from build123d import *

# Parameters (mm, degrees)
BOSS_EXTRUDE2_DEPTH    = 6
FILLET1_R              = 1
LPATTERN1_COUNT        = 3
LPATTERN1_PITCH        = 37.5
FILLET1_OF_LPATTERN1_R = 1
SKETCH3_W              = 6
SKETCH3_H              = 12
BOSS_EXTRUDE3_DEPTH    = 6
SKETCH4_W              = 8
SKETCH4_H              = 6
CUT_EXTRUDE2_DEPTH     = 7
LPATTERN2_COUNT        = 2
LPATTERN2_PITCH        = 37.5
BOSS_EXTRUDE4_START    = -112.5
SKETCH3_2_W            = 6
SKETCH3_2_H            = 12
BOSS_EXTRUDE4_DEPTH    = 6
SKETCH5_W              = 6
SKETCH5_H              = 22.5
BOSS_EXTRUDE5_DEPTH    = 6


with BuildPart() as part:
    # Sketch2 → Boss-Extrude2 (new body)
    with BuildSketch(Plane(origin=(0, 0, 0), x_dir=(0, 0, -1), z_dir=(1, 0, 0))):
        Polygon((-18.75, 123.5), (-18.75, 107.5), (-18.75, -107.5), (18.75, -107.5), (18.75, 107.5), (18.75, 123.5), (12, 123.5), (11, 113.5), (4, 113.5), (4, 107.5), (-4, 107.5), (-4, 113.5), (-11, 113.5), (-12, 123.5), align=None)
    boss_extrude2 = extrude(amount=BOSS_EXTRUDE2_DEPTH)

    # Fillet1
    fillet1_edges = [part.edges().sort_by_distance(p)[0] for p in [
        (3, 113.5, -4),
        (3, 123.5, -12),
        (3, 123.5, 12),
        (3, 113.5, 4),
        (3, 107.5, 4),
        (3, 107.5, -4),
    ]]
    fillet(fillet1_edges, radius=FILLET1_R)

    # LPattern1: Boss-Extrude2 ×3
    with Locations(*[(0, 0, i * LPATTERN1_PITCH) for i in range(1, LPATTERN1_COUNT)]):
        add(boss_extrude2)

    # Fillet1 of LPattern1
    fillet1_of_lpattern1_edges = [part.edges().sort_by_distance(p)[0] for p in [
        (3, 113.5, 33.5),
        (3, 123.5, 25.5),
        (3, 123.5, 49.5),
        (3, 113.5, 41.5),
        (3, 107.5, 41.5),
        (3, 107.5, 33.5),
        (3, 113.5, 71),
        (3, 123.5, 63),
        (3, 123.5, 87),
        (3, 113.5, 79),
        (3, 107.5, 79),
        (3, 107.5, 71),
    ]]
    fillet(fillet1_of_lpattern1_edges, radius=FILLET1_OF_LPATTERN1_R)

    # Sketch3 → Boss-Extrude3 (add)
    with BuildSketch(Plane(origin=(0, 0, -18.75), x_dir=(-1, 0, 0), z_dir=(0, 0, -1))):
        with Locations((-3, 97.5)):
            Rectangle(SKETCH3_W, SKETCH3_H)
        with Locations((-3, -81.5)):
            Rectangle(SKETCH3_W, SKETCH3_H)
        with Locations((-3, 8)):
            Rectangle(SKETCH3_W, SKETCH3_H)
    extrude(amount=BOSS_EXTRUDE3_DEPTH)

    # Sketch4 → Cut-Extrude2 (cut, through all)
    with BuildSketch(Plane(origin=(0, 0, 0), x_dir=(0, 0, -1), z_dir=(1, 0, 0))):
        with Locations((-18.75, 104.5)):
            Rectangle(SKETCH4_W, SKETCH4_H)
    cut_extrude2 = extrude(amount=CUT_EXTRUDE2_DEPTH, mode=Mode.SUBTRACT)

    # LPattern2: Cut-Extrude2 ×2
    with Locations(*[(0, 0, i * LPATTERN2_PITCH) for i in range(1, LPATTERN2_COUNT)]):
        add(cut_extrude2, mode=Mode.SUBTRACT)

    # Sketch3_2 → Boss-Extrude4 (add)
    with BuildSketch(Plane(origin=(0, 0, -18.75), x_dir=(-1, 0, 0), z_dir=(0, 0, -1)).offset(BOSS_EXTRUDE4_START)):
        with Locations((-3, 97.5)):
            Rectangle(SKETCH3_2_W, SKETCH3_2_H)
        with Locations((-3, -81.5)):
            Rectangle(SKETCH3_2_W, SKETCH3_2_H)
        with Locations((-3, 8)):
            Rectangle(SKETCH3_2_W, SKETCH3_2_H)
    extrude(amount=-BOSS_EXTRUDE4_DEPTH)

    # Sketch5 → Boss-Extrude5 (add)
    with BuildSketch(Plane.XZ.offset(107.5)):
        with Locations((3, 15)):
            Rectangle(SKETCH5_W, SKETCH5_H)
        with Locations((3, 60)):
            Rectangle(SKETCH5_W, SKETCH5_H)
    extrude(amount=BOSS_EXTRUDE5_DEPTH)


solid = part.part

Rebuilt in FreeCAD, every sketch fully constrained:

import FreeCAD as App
import Part
import Sketcher

V = App.Vector
Q = App.Units.Quantity


def edges_at(feature, points):
    """Names of the edges that pass closest to the given points."""
    edges = feature.Shape.Edges
    near = lambda p: min(range(len(edges)), key=lambda i: edges[i].distToShape(Part.Vertex(*p))[0])
    return sorted({f"Edge{near(p) + 1}" for p in points})

doc = App.newDocument("Part")
body = doc.addObject("PartDesign::Body", "Body")

# Sketch on YZ plane
sketch1 = body.newObject("Sketcher::SketchObject", "Sketch")
sketch1.AttachmentSupport = (doc.getObject("YZ_Plane"), [""])
sketch1.MapMode = "FlatFace"
sketch1.addGeometry([
    Part.LineSegment(V(124, 19, 0), V(-108, 19, 0)),  # 0
    Part.LineSegment(V(-108, 19, 0), V(-108, -19, 0)),  # 1
    Part.LineSegment(V(-108, -19, 0), V(124, -19, 0)),  # 2
    Part.LineSegment(V(124, -19, 0), V(124, -12, 0)),  # 3
    Part.LineSegment(V(124, -12, 0), V(114, -11, 0)),  # 4
    Part.LineSegment(V(114, -11, 0), V(114, -4, 0)),  # 5
    Part.LineSegment(V(114, -4, 0), V(108, -4, 0)),  # 6
    Part.LineSegment(V(108, -4, 0), V(108, 4, 0)),  # 7
    Part.LineSegment(V(108, 4, 0), V(114, 4, 0)),  # 8
    Part.LineSegment(V(114, 4, 0), V(114, 11, 0)),  # 9
    Part.LineSegment(V(114, 11, 0), V(124, 12, 0)),  # 10
    Part.LineSegment(V(124, 12, 0), V(124, 19, 0)),  # 11
], False)
sketch1.addConstraint([
    Sketcher.Constraint("Coincident", 0, 2, 1, 1),
    Sketcher.Constraint("Coincident", 1, 2, 2, 1),
    Sketcher.Constraint("Coincident", 2, 2, 3, 1),
    Sketcher.Constraint("Coincident", 3, 2, 4, 1),
    Sketcher.Constraint("Coincident", 4, 2, 5, 1),
    Sketcher.Constraint("Coincident", 5, 2, 6, 1),
    Sketcher.Constraint("Coincident", 6, 2, 7, 1),
    Sketcher.Constraint("Coincident", 7, 2, 8, 1),
    Sketcher.Constraint("Coincident", 8, 2, 9, 1),
    Sketcher.Constraint("Coincident", 9, 2, 10, 1),
    Sketcher.Constraint("Coincident", 10, 2, 11, 1),
    Sketcher.Constraint("Coincident", 11, 2, 0, 1),
    Sketcher.Constraint("Horizontal", 0),
    Sketcher.Constraint("Vertical", 1),
    Sketcher.Constraint("Horizontal", 2),
    Sketcher.Constraint("Vertical", 3),
    Sketcher.Constraint("Vertical", 5),
    Sketcher.Constraint("Horizontal", 6),
    Sketcher.Constraint("Vertical", 7),
    Sketcher.Constraint("Horizontal", 8),
    Sketcher.Constraint("Vertical", 9),
    Sketcher.Constraint("Vertical", 11),
    Sketcher.Constraint("Symmetric", 5, 2, 8, 2, -1),
    Sketcher.Constraint("Symmetric", 3, 2, 10, 2, -1),
    Sketcher.Constraint("Equal", 5, 9),
    Sketcher.Constraint("Equal", 3, 11),
    Sketcher.Constraint("DistanceX", 0, 2, 0, 1, Q("231 mm")),
    Sketcher.Constraint("DistanceX", 6, 2, 6, 1, Q("6 mm")),
    Sketcher.Constraint("DistanceY", 5, 1, 5, 2, Q("7 mm")),
    Sketcher.Constraint("DistanceY", 7, 1, 7, 2, Q("8 mm")),
    Sketcher.Constraint("DistanceY", 1, 2, 1, 1, Q("37.5 mm")),
    Sketcher.Constraint("DistanceY", 3, 2, -1, 1, Q("12 mm")),
    Sketcher.Constraint("DistanceX", 4, 2, 3, 2, Q("10 mm")),
    Sketcher.Constraint("DistanceX", 0, 2, -1, 1, Q("107.5 mm")),
])
pad1 = body.newObject("PartDesign::Pad", "Pad")
pad1.Profile = sketch1
pad1.Length = 6
doc.recompute()

fillet = body.newObject("PartDesign::Fillet", "Fillet")
fillet.Base = (pad1, edges_at(pad1, [
    (3, 113.5, -4),
    (3, 123.5, -12),
    (3, 123.5, 12),
    (3, 113.5, 4),
    (3, 107.5, 4),
    (3, 107.5, -4),
]))
fillet.Radius = 1
doc.recompute()

linearpattern = body.newObject("PartDesign::LinearPattern", "LinearPattern")
linearpattern.Originals = [pad1]
linearpattern.Direction = (doc.getObject("Z_Axis"), [""])
linearpattern.Mode = "offset"
linearpattern.Offset = 37.5
linearpattern.Occurrences = 3
body.Tip = linearpattern
doc.recompute()

fillet2 = body.newObject("PartDesign::Fillet", "Fillet001")
fillet2.Base = (linearpattern, edges_at(linearpattern, [
    (3, 113.5, 33.5),
    (3, 123.5, 25.5),
    (3, 123.5, 49.5),
    (3, 113.5, 41.5),
    (3, 107.5, 41.5),
    (3, 107.5, 33.5),
    (3, 113.5, 71),
    (3, 123.5, 63),
    (3, 123.5, 87),
    (3, 113.5, 79),
    (3, 107.5, 79),
    (3, 107.5, 71),
]))
fillet2.Radius = 1

# Sketch on XY plane
sketch2 = body.newObject("Sketcher::SketchObject", "Sketch001")
sketch2.AttachmentSupport = (doc.getObject("XY_Plane"), [""])
sketch2.MapMode = "FlatFace"
sketch2.AttachmentOffset = App.Placement(V(0, 0, -18.75), App.Rotation())
sketch2.addGeometry([
    Part.LineSegment(V(6, 104, 0), V(6, 92, 0)),  # 0
    Part.LineSegment(V(6, 92, 0), V(0, 92, 0)),  # 1
    Part.LineSegment(V(0, 92, 0), V(0, 104, 0)),  # 2
    Part.LineSegment(V(0, 104, 0), V(6, 104, 0)),  # 3
    Part.LineSegment(V(6, -76, 0), V(6, -88, 0)),  # 4
    Part.LineSegment(V(6, -88, 0), V(0, -88, 0)),  # 5
    Part.LineSegment(V(0, -88, 0), V(0, -76, 0)),  # 6
    Part.LineSegment(V(0, -76, 0), V(6, -76, 0)),  # 7
    Part.LineSegment(V(6, 14, 0), V(6, 2, 0)),  # 8
    Part.LineSegment(V(6, 2, 0), V(0, 2, 0)),  # 9
    Part.LineSegment(V(0, 2, 0), V(0, 14, 0)),  # 10
    Part.LineSegment(V(0, 14, 0), V(6, 14, 0)),  # 11
], False)
sketch2.addConstraint([
    Sketcher.Constraint("Coincident", 0, 2, 1, 1),
    Sketcher.Constraint("Coincident", 1, 2, 2, 1),
    Sketcher.Constraint("Coincident", 2, 2, 3, 1),
    Sketcher.Constraint("Coincident", 3, 2, 0, 1),
    Sketcher.Constraint("Coincident", 4, 2, 5, 1),
    Sketcher.Constraint("Coincident", 5, 2, 6, 1),
    Sketcher.Constraint("Coincident", 6, 2, 7, 1),
    Sketcher.Constraint("Coincident", 7, 2, 4, 1),
    Sketcher.Constraint("Coincident", 8, 2, 9, 1),
    Sketcher.Constraint("Coincident", 9, 2, 10, 1),
    Sketcher.Constraint("Coincident", 10, 2, 11, 1),
    Sketcher.Constraint("Coincident", 11, 2, 8, 1),
    Sketcher.Constraint("Vertical", 0),
    Sketcher.Constraint("Horizontal", 1),
    Sketcher.Constraint("Vertical", 2),
    Sketcher.Constraint("Horizontal", 3),
    Sketcher.Constraint("Vertical", 4),
    Sketcher.Constraint("Horizontal", 5),
    Sketcher.Constraint("Vertical", 6),
    Sketcher.Constraint("Horizontal", 7),
    Sketcher.Constraint("Vertical", 8),
    Sketcher.Constraint("Horizontal", 9),
    Sketcher.Constraint("Vertical", 10),
    Sketcher.Constraint("Horizontal", 11),
    Sketcher.Constraint("PointOnObject", 1, 2, -2),
    Sketcher.Constraint("PointOnObject", 5, 2, -2),
    Sketcher.Constraint("PointOnObject", 9, 2, -2),
    Sketcher.Constraint("Vertical", 3, 2, 4, 2),
    Sketcher.Constraint("Vertical", 7, 2, 8, 2),
    Sketcher.Constraint("Equal", 2, 4),
    Sketcher.Constraint("Equal", 6, 8),
    Sketcher.Constraint("DistanceX", 1, 2, 1, 1, Q("6 mm")),
    Sketcher.Constraint("DistanceY", 0, 2, 0, 1, Q("12 mm")),
    Sketcher.Constraint("DistanceY", -1, 1, 8, 2, Q("2 mm")),
    Sketcher.Constraint("DistanceY", 4, 2, 0, 2, Q("179 mm")),
    Sketcher.Constraint("DistanceY", -1, 1, 0, 2, Q("91.5 mm")),
])
pad2 = body.newObject("PartDesign::Pad", "Pad001")
pad2.Profile = sketch2
pad2.Length = 6
pad2.Reversed = True

# Sketch on YZ plane
sketch3 = body.newObject("Sketcher::SketchObject", "Sketch002")
sketch3.AttachmentSupport = (doc.getObject("YZ_Plane"), [""])
sketch3.MapMode = "FlatFace"
sketch3.addGeometry([
    Part.LineSegment(V(108, 23, 0), V(102, 23, 0)),
    Part.LineSegment(V(102, 23, 0), V(102, 15, 0)),
    Part.LineSegment(V(102, 15, 0), V(108, 15, 0)),
    Part.LineSegment(V(108, 15, 0), V(108, 23, 0)),
], False)
sketch3.addConstraint([
    Sketcher.Constraint("Coincident", 0, 2, 1, 1),
    Sketcher.Constraint("Coincident", 1, 2, 2, 1),
    Sketcher.Constraint("Coincident", 2, 2, 3, 1),
    Sketcher.Constraint("Coincident", 3, 2, 0, 1),
    Sketcher.Constraint("Horizontal", 0),
    Sketcher.Constraint("Vertical", 1),
    Sketcher.Constraint("Horizontal", 2),
    Sketcher.Constraint("Vertical", 3),
    Sketcher.Constraint("DistanceX", 0, 2, 0, 1, Q("6 mm")),
    Sketcher.Constraint("DistanceY", 1, 2, 1, 1, Q("8 mm")),
    Sketcher.Constraint("DistanceX", -1, 1, 0, 2, Q("101.5 mm")),
    Sketcher.Constraint("DistanceY", -1, 1, 0, 2, Q("22.75 mm")),
])
pocket1 = body.newObject("PartDesign::Pocket", "Pocket")
pocket1.Profile = sketch3
pocket1.Type = "ThroughAll"
pocket1.Reversed = True
doc.recompute()

linearpattern2 = body.newObject("PartDesign::LinearPattern", "LinearPattern001")
linearpattern2.Originals = [pocket1]
linearpattern2.Direction = (doc.getObject("Z_Axis"), [""])
linearpattern2.Mode = "offset"
linearpattern2.Offset = 37.5
linearpattern2.Occurrences = 2
body.Tip = linearpattern2

# Sketch on XY plane
sketch4 = body.newObject("Sketcher::SketchObject", "Sketch003")
sketch4.AttachmentSupport = (doc.getObject("XY_Plane"), [""])
sketch4.MapMode = "FlatFace"
sketch4.AttachmentOffset = App.Placement(V(0, 0, 93.75), App.Rotation())
sketch4.addGeometry([
    Part.LineSegment(V(6, 104, 0), V(6, 92, 0)),  # 0
    Part.LineSegment(V(6, 92, 0), V(0, 92, 0)),  # 1
    Part.LineSegment(V(0, 92, 0), V(0, 104, 0)),  # 2
    Part.LineSegment(V(0, 104, 0), V(6, 104, 0)),  # 3
    Part.LineSegment(V(6, -76, 0), V(6, -88, 0)),  # 4
    Part.LineSegment(V(6, -88, 0), V(0, -88, 0)),  # 5
    Part.LineSegment(V(0, -88, 0), V(0, -76, 0)),  # 6
    Part.LineSegment(V(0, -76, 0), V(6, -76, 0)),  # 7
    Part.LineSegment(V(6, 14, 0), V(6, 2, 0)),  # 8
    Part.LineSegment(V(6, 2, 0), V(0, 2, 0)),  # 9
    Part.LineSegment(V(0, 2, 0), V(0, 14, 0)),  # 10
    Part.LineSegment(V(0, 14, 0), V(6, 14, 0)),  # 11
], False)
sketch4.addConstraint([
    Sketcher.Constraint("Coincident", 0, 2, 1, 1),
    Sketcher.Constraint("Coincident", 1, 2, 2, 1),
    Sketcher.Constraint("Coincident", 2, 2, 3, 1),
    Sketcher.Constraint("Coincident", 3, 2, 0, 1),
    Sketcher.Constraint("Coincident", 4, 2, 5, 1),
    Sketcher.Constraint("Coincident", 5, 2, 6, 1),
    Sketcher.Constraint("Coincident", 6, 2, 7, 1),
    Sketcher.Constraint("Coincident", 7, 2, 4, 1),
    Sketcher.Constraint("Coincident", 8, 2, 9, 1),
    Sketcher.Constraint("Coincident", 9, 2, 10, 1),
    Sketcher.Constraint("Coincident", 10, 2, 11, 1),
    Sketcher.Constraint("Coincident", 11, 2, 8, 1),
    Sketcher.Constraint("Vertical", 0),
    Sketcher.Constraint("Horizontal", 1),
    Sketcher.Constraint("Vertical", 2),
    Sketcher.Constraint("Horizontal", 3),
    Sketcher.Constraint("Vertical", 4),
    Sketcher.Constraint("Horizontal", 5),
    Sketcher.Constraint("Vertical", 6),
    Sketcher.Constraint("Horizontal", 7),
    Sketcher.Constraint("Vertical", 8),
    Sketcher.Constraint("Horizontal", 9),
    Sketcher.Constraint("Vertical", 10),
    Sketcher.Constraint("Horizontal", 11),
    Sketcher.Constraint("PointOnObject", 1, 2, -2),
    Sketcher.Constraint("PointOnObject", 5, 2, -2),
    Sketcher.Constraint("PointOnObject", 9, 2, -2),
    Sketcher.Constraint("Vertical", 3, 2, 4, 2),
    Sketcher.Constraint("Vertical", 7, 2, 8, 2),
    Sketcher.Constraint("Equal", 2, 4),
    Sketcher.Constraint("Equal", 6, 8),
    Sketcher.Constraint("DistanceX", 1, 2, 1, 1, Q("6 mm")),
    Sketcher.Constraint("DistanceY", 0, 2, 0, 1, Q("12 mm")),
    Sketcher.Constraint("DistanceY", -1, 1, 8, 2, Q("2 mm")),
    Sketcher.Constraint("DistanceY", 4, 2, 0, 2, Q("179 mm")),
    Sketcher.Constraint("DistanceY", -1, 1, 0, 2, Q("91.5 mm")),
])
pad3 = body.newObject("PartDesign::Pad", "Pad002")
pad3.Profile = sketch4
pad3.Length = 6

# Sketch on XZ plane
sketch5 = body.newObject("Sketcher::SketchObject", "Sketch004")
sketch5.AttachmentSupport = (doc.getObject("XZ_Plane"), [""])
sketch5.MapMode = "FlatFace"
sketch5.AttachmentOffset = App.Placement(V(0, 0, 107.5), App.Rotation())
sketch5.addGeometry([
    Part.LineSegment(V(0, 26, 0), V(0, 4, 0)),  # 0
    Part.LineSegment(V(0, 4, 0), V(6, 4, 0)),  # 1
    Part.LineSegment(V(6, 4, 0), V(6, 26, 0)),  # 2
    Part.LineSegment(V(6, 26, 0), V(0, 26, 0)),  # 3
    Part.LineSegment(V(0, 71, 0), V(0, 49, 0)),  # 4
    Part.LineSegment(V(0, 49, 0), V(6, 49, 0)),  # 5
    Part.LineSegment(V(6, 49, 0), V(6, 71, 0)),  # 6
    Part.LineSegment(V(6, 71, 0), V(0, 71, 0)),  # 7
], False)
sketch5.addConstraint([
    Sketcher.Constraint("Coincident", 0, 2, 1, 1),
    Sketcher.Constraint("Coincident", 1, 2, 2, 1),
    Sketcher.Constraint("Coincident", 2, 2, 3, 1),
    Sketcher.Constraint("Coincident", 3, 2, 0, 1),
    Sketcher.Constraint("Coincident", 4, 2, 5, 1),
    Sketcher.Constraint("Coincident", 5, 2, 6, 1),
    Sketcher.Constraint("Coincident", 6, 2, 7, 1),
    Sketcher.Constraint("Coincident", 7, 2, 4, 1),
    Sketcher.Constraint("Vertical", 0),
    Sketcher.Constraint("Horizontal", 1),
    Sketcher.Constraint("Vertical", 2),
    Sketcher.Constraint("Horizontal", 3),
    Sketcher.Constraint("Vertical", 4),
    Sketcher.Constraint("Horizontal", 5),
    Sketcher.Constraint("Vertical", 6),
    Sketcher.Constraint("Horizontal", 7),
    Sketcher.Constraint("PointOnObject", 0, 2, -2),
    Sketcher.Constraint("PointOnObject", 4, 2, -2),
    Sketcher.Constraint("Vertical", 2, 2, 5, 2),
    Sketcher.Constraint("Equal", 2, 4),
    Sketcher.Constraint("DistanceX", 1, 1, 1, 2, Q("6 mm")),
    Sketcher.Constraint("DistanceY", 0, 2, 0, 1, Q("22.5 mm")),
    Sketcher.Constraint("DistanceY", 0, 2, 4, 2, Q("45 mm")),
    Sketcher.Constraint("DistanceY", -1, 1, 0, 2, Q("3.75 mm")),
])
pad4 = body.newObject("PartDesign::Pad", "Pad003")
pad4.Profile = sketch5
pad4.Length = 6

doc.recompute()
